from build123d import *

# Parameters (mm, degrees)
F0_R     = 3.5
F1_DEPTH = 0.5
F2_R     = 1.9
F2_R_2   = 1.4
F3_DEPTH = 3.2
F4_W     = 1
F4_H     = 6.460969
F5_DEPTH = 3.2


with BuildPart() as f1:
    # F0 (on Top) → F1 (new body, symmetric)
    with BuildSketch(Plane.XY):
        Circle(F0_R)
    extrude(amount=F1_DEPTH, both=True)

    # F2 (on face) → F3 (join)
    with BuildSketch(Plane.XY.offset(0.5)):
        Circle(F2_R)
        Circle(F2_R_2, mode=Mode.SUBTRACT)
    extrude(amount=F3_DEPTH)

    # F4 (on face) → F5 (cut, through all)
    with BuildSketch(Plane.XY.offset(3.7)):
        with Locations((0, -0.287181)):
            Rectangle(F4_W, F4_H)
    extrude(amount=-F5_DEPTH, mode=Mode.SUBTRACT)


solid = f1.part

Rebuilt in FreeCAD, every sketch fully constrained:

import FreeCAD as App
import Part
import Sketcher
Q = App.Units.Quantity


def add_polygon(sketch, points):
    """Adds a closed chain of lines whose ends are joined by coincident constraints."""
    first, n = sketch.GeometryCount, len(points)
    for a, b in zip(points, points[1:] + points[:1]):
        sketch.addGeometry(Part.LineSegment(App.Vector(*a, 0), App.Vector(*b, 0)), False)
    for i in range(n):
        sketch.addConstraint(Sketcher.Constraint("Coincident", first + i, 2, first + (i + 1) % n, 1))

doc = App.newDocument("Part")
body = doc.addObject("PartDesign::Body", "Body")

sketch1 = body.newObject("Sketcher::SketchObject", "Sketch")
sketch1.AttachmentSupport = (doc.getObject("XY_Plane"), [""])
sketch1.MapMode = "FlatFace"
sketch1.addGeometry(Part.Circle(App.Vector(0, 0, 0), App.Vector(0, 0, 1), 3.5), False)
sketch1.addConstraint([
    Sketcher.Constraint("Coincident", 0, 3, -1, 1),
    Sketcher.Constraint("Diameter", 0, Q("7 mm")),
])
pad1 = body.newObject("PartDesign::Pad", "Pad")
pad1.Profile = sketch1
pad1.Length = 1
pad1.Midplane = True

sketch2 = body.newObject("Sketcher::SketchObject", "Sketch001")
sketch2.AttachmentSupport = (doc.getObject("XY_Plane"), [""])
sketch2.MapMode = "FlatFace"
sketch2.AttachmentOffset = App.Placement(App.Vector(0, 0, 0.5), App.Rotation())
sketch2.addGeometry([
    Part.Circle(App.Vector(0, 0, 0), App.Vector(0, 0, 1), 1.9),
    Part.Circle(App.Vector(0, 0, 0), App.Vector(0, 0, 1), 1.4),
], False)
sketch2.addConstraint([
    Sketcher.Constraint("Coincident", 0, 3, -1, 1),
    Sketcher.Constraint("Coincident", 1, 3, -1, 1),
    Sketcher.Constraint("Diameter", 0, Q("3.8 mm")),
    Sketcher.Constraint("Diameter", 1, Q("2.8 mm")),
])
pad2 = body.newObject("PartDesign::Pad", "Pad001")
pad2.Profile = sketch2
pad2.Length = 3.2

sketch3 = body.newObject("Sketcher::SketchObject", "Sketch002")
sketch3.AttachmentSupport = (doc.getObject("XY_Plane"), [""])
sketch3.MapMode = "FlatFace"
sketch3.AttachmentOffset = App.Placement(App.Vector(0, 0, 3.7), App.Rotation())
add_polygon(sketch3, [(-0.5, 2.9), (-0.5, -3.5), (0.5, -3.5), (0.5, 2.9)])
sketch3.addConstraint([
    Sketcher.Constraint("Vertical", 0),
    Sketcher.Constraint("Horizontal", 1),
    Sketcher.Constraint("Vertical", 2),
    Sketcher.Constraint("Horizontal", 3),
    Sketcher.Constraint("DistanceX", 1, 1, 1, 2, Q("1 mm")),
    Sketcher.Constraint("DistanceX", 0, 2, -1, 1, Q("0.5 mm")),
    Sketcher.Constraint("DistanceY", 0, 2, 0, 1, Q("6.460969 mm")),
    Sketcher.Constraint("DistanceY", 0, 2, -1, 1, Q("3.517666 mm")),
])
pocket1 = body.newObject("PartDesign::Pocket", "Pocket")
pocket1.Profile = sketch3
pocket1.Length = 3.2

doc.recompute()
